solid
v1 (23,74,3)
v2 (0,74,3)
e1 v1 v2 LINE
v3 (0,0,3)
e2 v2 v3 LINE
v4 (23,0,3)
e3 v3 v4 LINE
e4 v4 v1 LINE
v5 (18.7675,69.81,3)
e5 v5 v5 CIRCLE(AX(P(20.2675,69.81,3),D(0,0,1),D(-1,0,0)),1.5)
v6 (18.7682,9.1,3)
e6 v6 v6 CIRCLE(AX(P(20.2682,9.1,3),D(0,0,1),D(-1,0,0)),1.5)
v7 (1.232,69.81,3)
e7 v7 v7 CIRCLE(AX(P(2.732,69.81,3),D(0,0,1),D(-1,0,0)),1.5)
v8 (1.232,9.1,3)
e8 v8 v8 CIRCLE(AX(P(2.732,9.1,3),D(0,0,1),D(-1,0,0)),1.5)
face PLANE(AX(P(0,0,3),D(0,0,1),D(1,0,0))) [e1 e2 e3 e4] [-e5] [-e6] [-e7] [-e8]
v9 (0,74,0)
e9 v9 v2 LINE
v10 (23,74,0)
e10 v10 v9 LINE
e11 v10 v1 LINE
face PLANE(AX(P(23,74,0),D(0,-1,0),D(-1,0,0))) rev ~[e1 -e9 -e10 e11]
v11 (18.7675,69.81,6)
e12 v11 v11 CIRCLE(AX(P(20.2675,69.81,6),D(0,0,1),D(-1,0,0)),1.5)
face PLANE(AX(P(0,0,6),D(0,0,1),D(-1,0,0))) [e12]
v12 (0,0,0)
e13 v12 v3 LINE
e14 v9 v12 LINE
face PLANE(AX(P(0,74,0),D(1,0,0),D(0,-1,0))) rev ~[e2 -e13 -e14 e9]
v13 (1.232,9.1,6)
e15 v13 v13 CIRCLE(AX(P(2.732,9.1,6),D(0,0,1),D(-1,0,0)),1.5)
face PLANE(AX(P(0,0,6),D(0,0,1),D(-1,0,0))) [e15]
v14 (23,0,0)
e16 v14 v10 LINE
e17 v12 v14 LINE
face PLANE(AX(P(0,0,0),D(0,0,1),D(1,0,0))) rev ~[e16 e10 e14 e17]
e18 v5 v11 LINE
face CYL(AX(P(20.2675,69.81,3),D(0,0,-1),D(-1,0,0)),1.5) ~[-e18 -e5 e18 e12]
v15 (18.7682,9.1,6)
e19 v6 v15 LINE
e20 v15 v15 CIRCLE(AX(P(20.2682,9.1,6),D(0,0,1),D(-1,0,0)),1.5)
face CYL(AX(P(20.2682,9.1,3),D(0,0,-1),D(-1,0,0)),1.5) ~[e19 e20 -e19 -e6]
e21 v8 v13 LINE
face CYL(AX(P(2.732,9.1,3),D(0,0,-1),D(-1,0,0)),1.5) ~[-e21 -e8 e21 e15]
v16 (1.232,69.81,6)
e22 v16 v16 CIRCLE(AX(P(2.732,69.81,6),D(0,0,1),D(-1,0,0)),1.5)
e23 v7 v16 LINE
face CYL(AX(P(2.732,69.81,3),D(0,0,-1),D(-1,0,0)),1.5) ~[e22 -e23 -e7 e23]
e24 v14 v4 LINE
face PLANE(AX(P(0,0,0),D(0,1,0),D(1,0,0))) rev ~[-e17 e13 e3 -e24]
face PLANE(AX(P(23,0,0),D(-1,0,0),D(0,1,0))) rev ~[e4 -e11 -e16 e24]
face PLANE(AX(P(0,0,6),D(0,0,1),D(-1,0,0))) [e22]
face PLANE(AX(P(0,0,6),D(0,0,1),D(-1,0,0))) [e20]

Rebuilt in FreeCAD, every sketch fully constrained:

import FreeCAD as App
import Part
import Sketcher
Q = App.Units.Quantity


def add_polygon(sketch, points):
    """Adds a closed chain of lines whose ends are joined by coincident constraints."""
    first, n = sketch.GeometryCount, len(points)
    for a, b in zip(points, points[1:] + points[:1]):
        sketch.addGeometry(Part.LineSegment(App.Vector(*a, 0), App.Vector(*b, 0)), False)
    for i in range(n):
        sketch.addConstraint(Sketcher.Constraint("Coincident", first + i, 2, first + (i + 1) % n, 1))

doc = App.newDocument("Part")
body = doc.addObject("PartDesign::Body", "Body")

# Sketch on XY plane
sketch1 = doc.addObject("Sketcher::SketchObject", "Sketch")
body.addObject(sketch1)
sketch1.AttachmentSupport = (doc.XY_Plane, [""])
sketch1.MapMode = "FlatFace"
add_polygon(sketch1, [(0, 74), (0, 0), (23, 0), (23, 74)])  # lines 0-3
sketch1.addConstraint([
    Sketcher.Constraint("Vertical", 0),
    Sketcher.Constraint("Horizontal", 1),
    Sketcher.Constraint("Vertical", 2),
    Sketcher.Constraint("Horizontal", 3),
    Sketcher.Constraint("Coincident", 0, 2, -1, 1),
    Sketcher.Constraint("DistanceX", 1, 1, 1, 2, Q("23 mm")),
    Sketcher.Constraint("DistanceY", 0, 2, 0, 1, Q("74 mm")),
])
pad1 = doc.addObject("PartDesign::Pad", "Pad")
body.addObject(pad1)
pad1.Profile = sketch1
pad1.Length = 3

# Sketch on XY plane
sketch2 = doc.addObject("Sketcher::SketchObject", "Sketch001")
body.addObject(sketch2)
sketch2.AttachmentSupport = (doc.XY_Plane, [""])
sketch2.MapMode = "FlatFace"
sketch2.AttachmentOffset = App.Placement(App.Vector(0, 0, 3), App.Rotation())
sketch2.addGeometry([
    Part.Circle(App.Vector(2.7, 9.1, 0), App.Vector(0, 0, 1), 1.5),
    Part.Circle(App.Vector(20.3, 9.1, 0), App.Vector(0, 0, 1), 1.5),
    Part.Circle(App.Vector(2.7, 69.8, 0), App.Vector(0, 0, 1), 1.5),
    Part.Circle(App.Vector(20.3, 69.8, 0), App.Vector(0, 0, 1), 1.5),
], False)
sketch2.addConstraint([
    Sketcher.Constraint("Equal", 0, 1),
    Sketcher.Constraint("Equal", 1, 2),
    Sketcher.Constraint("Equal", 2, 3),
    Sketcher.Constraint("Horizontal", 0, 3, 1, 3),
    Sketcher.Constraint("Horizontal", 2, 3, 3, 3),
    Sketcher.Constraint("Vertical", 0, 3, 2, 3),
    Sketcher.Constraint("Diameter", 0, Q("3 mm")),
    Sketcher.Constraint("DistanceY", -1, 1, 0, 3, Q("9.1 mm")),
    Sketcher.Constraint("DistanceY", -1, 1, 2, 3, Q("69.81 mm")),
    Sketcher.Constraint("DistanceX", -1, 1, 0, 3, Q("2.732 mm")),
    Sketcher.Constraint("DistanceX", -1, 1, 1, 3, Q("20.2682 mm")),
    Sketcher.Constraint("DistanceX", -1, 1, 3, 3, Q("20.2675 mm")),
])
pad2 = doc.addObject("PartDesign::Pad", "Pad001")
body.addObject(pad2)
pad2.Profile = sketch2
pad2.Length = 3

doc.recompute()
